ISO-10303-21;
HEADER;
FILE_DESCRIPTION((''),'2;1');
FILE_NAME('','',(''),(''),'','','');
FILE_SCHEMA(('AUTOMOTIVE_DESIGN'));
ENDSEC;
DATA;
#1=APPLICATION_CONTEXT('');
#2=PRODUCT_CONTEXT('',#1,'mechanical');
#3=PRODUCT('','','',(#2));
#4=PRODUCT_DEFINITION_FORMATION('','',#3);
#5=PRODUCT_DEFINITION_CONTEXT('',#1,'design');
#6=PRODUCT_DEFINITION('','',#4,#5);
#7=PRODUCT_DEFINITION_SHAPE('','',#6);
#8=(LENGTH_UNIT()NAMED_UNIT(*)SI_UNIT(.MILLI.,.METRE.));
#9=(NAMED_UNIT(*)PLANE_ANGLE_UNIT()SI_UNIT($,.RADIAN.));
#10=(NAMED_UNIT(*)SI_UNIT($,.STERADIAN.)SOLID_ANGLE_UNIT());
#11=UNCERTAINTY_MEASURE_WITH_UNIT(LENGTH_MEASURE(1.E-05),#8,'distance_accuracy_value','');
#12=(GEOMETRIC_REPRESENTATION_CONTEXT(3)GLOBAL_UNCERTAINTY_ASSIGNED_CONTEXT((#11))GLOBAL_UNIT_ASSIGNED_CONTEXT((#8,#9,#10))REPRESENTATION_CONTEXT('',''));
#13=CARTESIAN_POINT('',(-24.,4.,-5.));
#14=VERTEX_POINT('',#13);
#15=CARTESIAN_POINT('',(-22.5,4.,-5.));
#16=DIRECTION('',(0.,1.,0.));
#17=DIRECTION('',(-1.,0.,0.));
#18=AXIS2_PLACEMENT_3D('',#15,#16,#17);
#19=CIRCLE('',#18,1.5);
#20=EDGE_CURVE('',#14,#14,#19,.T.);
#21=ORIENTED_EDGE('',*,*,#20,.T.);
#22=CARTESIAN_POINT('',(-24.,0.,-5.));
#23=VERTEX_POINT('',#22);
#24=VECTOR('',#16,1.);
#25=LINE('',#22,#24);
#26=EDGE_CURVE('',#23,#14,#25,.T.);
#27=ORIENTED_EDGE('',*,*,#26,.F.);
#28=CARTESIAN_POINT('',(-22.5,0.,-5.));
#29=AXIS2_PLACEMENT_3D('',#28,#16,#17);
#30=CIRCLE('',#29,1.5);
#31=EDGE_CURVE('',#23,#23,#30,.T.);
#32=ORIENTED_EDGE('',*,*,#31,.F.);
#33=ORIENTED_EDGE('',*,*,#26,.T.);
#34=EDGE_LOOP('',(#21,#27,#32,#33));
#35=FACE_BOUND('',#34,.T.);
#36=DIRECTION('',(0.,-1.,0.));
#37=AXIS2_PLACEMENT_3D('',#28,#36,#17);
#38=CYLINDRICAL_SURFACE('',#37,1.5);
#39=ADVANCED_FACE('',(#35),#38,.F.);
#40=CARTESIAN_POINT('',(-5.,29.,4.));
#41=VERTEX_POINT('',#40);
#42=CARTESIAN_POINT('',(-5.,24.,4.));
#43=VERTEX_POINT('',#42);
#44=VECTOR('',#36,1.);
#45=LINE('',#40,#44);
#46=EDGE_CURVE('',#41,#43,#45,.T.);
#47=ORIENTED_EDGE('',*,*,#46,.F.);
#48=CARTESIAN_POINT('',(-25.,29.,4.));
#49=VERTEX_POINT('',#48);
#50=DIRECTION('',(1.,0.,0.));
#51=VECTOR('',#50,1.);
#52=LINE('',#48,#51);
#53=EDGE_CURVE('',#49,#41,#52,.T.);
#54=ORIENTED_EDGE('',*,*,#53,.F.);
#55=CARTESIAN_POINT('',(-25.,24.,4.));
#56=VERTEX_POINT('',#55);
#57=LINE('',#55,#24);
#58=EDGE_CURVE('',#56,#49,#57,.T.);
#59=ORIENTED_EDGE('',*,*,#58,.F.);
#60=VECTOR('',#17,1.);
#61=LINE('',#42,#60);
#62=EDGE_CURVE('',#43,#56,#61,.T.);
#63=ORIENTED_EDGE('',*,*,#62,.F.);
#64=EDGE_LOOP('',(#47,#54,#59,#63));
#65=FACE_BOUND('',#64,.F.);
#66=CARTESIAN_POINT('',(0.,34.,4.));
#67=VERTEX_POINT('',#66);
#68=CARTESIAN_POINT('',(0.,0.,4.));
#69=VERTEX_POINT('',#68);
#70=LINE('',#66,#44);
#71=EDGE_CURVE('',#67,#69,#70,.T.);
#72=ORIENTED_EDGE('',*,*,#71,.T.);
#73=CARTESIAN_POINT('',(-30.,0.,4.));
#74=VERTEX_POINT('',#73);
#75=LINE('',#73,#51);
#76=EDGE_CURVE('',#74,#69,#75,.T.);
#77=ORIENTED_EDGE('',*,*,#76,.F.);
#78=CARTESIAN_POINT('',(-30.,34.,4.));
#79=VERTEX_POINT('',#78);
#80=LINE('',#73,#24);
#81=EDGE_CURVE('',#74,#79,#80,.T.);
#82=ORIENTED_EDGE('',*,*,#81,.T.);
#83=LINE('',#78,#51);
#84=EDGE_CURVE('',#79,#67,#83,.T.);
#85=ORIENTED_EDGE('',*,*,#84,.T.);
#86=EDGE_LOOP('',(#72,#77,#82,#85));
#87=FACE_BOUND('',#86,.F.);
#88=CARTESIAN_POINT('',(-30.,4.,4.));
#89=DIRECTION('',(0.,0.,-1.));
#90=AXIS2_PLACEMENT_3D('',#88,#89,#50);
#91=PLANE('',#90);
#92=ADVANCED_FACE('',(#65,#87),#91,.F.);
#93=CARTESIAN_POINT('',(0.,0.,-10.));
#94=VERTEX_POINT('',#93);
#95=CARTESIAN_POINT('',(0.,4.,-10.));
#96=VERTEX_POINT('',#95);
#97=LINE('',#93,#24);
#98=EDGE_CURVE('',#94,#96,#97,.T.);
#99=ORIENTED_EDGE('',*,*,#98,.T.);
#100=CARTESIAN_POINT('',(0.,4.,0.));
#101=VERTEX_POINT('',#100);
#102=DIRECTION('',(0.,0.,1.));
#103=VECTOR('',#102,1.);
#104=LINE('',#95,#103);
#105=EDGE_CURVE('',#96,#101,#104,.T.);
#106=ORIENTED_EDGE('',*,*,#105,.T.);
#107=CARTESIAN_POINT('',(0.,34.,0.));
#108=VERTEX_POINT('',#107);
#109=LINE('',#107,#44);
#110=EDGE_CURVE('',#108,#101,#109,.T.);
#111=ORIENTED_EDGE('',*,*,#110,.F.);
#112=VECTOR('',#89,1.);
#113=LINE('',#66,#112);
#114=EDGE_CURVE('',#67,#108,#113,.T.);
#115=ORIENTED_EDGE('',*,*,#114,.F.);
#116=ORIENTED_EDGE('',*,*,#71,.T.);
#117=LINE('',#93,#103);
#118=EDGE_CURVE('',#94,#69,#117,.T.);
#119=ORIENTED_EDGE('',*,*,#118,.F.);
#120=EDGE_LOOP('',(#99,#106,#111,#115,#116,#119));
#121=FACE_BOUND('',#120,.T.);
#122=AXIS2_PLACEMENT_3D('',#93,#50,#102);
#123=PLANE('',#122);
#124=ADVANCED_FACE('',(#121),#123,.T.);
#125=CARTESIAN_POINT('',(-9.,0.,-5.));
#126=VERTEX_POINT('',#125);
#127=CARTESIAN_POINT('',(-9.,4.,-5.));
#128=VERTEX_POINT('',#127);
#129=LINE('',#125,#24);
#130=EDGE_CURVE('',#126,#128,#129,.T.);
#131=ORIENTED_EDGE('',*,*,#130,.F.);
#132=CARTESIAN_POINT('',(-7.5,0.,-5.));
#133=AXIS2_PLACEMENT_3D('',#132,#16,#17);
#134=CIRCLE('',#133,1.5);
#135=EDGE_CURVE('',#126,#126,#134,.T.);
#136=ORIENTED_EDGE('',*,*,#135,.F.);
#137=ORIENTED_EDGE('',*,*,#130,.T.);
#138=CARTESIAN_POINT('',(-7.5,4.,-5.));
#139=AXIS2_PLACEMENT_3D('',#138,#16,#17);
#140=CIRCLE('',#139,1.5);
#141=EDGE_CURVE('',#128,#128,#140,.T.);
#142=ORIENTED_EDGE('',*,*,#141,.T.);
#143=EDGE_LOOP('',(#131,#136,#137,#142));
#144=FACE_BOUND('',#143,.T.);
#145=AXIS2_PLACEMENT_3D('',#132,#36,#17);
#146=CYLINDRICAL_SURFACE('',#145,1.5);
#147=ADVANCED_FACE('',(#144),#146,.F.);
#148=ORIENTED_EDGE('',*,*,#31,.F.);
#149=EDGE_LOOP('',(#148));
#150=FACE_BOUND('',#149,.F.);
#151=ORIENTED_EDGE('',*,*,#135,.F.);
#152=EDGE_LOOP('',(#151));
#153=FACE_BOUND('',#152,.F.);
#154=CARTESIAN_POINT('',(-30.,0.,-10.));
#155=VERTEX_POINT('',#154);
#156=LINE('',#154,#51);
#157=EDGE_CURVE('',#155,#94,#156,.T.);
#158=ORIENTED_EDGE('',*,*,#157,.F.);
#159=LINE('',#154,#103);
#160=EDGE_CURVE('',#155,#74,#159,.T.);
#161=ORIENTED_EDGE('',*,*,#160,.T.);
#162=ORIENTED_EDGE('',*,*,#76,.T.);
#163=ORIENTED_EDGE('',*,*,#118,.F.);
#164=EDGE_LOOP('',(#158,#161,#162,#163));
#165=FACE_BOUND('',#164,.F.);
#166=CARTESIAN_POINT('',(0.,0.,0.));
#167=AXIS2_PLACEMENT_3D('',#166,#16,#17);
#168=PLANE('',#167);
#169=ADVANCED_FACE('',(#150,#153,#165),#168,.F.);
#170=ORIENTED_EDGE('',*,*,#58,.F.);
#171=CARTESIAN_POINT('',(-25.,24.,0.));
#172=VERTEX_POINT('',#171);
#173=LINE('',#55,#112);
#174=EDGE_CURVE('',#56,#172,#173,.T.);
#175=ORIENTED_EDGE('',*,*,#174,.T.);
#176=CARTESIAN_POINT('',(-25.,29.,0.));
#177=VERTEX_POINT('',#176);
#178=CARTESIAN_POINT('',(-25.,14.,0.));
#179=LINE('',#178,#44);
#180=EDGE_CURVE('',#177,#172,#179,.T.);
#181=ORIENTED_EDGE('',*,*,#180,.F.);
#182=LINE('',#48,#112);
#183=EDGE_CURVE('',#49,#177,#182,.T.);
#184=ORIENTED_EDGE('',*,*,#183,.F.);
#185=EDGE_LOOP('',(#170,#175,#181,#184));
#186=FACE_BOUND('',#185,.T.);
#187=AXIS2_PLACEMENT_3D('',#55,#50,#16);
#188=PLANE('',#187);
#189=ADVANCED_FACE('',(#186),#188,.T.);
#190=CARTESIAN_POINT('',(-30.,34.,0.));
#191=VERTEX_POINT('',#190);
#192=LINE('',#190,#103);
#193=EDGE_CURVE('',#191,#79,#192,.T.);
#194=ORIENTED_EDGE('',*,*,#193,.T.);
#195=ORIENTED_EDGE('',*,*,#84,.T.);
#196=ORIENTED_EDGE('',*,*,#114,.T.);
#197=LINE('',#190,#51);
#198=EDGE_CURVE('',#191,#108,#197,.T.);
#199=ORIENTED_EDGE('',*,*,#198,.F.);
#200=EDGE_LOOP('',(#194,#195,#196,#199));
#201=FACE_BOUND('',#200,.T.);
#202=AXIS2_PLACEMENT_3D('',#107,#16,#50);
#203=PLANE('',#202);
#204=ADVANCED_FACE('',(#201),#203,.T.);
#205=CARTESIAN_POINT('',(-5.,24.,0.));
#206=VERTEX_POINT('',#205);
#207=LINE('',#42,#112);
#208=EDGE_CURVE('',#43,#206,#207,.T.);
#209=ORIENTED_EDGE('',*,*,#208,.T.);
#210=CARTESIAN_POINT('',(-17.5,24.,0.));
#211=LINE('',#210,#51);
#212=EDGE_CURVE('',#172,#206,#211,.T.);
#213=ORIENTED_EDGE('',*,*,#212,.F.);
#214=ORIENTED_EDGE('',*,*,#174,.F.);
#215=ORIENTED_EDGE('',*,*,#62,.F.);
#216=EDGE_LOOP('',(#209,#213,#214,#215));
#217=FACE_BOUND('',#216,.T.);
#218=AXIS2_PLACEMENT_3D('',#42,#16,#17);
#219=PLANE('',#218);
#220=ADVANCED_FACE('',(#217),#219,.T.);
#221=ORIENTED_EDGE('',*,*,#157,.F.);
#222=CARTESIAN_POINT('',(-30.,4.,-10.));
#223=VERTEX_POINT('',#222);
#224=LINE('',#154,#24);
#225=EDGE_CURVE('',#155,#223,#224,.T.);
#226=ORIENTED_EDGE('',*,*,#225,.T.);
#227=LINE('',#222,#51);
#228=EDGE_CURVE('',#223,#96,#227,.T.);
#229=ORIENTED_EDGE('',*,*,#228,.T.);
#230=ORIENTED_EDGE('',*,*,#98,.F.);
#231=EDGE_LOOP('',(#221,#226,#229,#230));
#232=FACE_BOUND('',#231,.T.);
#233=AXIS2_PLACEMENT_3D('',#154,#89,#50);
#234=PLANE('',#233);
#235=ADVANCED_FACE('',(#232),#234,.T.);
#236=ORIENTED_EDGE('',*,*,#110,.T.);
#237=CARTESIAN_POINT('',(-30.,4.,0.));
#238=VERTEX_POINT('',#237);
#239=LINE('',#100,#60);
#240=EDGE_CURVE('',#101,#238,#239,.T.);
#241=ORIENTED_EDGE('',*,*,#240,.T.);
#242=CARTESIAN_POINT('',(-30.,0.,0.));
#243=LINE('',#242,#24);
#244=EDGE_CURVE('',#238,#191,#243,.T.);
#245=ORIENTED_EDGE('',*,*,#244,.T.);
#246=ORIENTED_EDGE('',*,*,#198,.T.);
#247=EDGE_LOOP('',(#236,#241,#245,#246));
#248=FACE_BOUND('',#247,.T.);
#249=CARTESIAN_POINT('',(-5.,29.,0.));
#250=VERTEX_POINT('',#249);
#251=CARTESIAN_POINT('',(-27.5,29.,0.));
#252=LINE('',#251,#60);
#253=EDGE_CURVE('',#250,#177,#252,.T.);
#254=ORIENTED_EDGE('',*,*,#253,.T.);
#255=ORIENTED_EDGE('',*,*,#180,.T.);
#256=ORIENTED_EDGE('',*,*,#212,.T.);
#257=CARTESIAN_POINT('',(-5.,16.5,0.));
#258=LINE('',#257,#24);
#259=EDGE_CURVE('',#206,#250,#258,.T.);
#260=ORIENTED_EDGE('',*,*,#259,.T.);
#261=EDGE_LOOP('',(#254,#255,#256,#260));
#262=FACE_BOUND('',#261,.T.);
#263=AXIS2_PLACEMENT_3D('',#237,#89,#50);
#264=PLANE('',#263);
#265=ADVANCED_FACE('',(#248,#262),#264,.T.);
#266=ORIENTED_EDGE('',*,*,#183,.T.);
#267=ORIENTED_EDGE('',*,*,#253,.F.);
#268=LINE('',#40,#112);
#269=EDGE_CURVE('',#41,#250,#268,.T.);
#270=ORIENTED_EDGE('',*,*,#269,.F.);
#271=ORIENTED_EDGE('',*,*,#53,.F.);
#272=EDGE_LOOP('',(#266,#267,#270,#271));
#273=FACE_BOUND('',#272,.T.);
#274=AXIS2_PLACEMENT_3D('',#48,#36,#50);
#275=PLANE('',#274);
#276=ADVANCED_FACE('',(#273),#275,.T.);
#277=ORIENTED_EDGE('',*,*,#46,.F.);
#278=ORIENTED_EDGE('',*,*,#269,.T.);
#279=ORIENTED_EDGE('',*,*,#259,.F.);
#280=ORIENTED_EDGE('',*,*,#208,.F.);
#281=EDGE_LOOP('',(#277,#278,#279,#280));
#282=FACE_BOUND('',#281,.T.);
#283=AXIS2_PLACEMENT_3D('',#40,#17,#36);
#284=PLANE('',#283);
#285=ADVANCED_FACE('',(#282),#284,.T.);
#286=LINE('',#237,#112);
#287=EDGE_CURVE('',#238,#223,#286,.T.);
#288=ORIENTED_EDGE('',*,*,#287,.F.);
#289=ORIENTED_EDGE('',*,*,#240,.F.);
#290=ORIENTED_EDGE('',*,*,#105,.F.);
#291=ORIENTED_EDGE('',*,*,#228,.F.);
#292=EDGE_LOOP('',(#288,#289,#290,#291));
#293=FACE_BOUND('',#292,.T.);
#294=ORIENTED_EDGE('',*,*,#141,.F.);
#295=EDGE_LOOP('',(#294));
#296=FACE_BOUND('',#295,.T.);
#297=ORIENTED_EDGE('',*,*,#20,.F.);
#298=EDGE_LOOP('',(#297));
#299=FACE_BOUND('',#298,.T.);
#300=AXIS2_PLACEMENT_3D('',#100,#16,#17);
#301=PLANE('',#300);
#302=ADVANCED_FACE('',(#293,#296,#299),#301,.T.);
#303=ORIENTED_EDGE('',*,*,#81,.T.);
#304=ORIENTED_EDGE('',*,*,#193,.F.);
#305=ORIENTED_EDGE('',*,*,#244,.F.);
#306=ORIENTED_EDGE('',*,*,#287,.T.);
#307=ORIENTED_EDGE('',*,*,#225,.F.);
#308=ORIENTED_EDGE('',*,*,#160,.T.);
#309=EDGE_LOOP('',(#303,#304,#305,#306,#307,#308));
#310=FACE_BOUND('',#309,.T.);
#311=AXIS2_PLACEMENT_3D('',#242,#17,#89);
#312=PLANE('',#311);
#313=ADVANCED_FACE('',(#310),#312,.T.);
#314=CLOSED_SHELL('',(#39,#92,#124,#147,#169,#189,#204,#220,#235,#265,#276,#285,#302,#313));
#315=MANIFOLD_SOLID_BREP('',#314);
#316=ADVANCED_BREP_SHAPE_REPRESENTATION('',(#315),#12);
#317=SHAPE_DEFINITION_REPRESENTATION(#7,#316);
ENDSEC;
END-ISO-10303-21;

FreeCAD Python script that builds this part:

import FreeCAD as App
import Part
import Sketcher

V = App.Vector
Q = App.Units.Quantity

doc = App.newDocument("Part")
body = doc.addObject("PartDesign::Body", "Body")

# Sketch on XZ plane
sketch1 = body.newObject("Sketcher::SketchObject", "Sketch")
sketch1.AttachmentSupport = (doc.getObject("XZ_Plane"), [""])
sketch1.MapMode = "FlatFace"
sketch1.addGeometry([
    Part.LineSegment(V(-30, 0, 0), V(0, 0, 0)),  # 0
    Part.LineSegment(V(0, 0, 0), V(0, -10, 0)),  # 1
    Part.LineSegment(V(0, -10, 0), V(-30, -10, 0)),  # 2
    Part.LineSegment(V(-30, -10, 0), V(-30, 0, 0)),  # 3
    Part.Circle(V(-7.5, -5, 0), V(0, 0, 1), 1.5),  # 4
    Part.Circle(V(-22.5, -5, 0), V(0, 0, 1), 1.5),  # 5
], False)
sketch1.addConstraint([
    Sketcher.Constraint("Coincident", 0, 2, 1, 1),
    Sketcher.Constraint("Coincident", 1, 2, 2, 1),
    Sketcher.Constraint("Coincident", 2, 2, 3, 1),
    Sketcher.Constraint("Coincident", 3, 2, 0, 1),
    Sketcher.Constraint("Horizontal", 0),
    Sketcher.Constraint("Vertical", 1),
    Sketcher.Constraint("Horizontal", 2),
    Sketcher.Constraint("Vertical", 3),
    Sketcher.Constraint("Coincident", 0, 2, -1, 1),
    Sketcher.Constraint("Equal", 4, 5),
    Sketcher.Constraint("Horizontal", 4, 3, 5, 3),
    Sketcher.Constraint("Diameter", 4, Q("3 mm")),
    Sketcher.Constraint("DistanceX", 0, 1, 0, 2, Q("30 mm")),
    Sketcher.Constraint("DistanceY", 1, 2, 1, 1, Q("10 mm")),
    Sketcher.Constraint("DistanceY", 4, 3, -1, 1, Q("5 mm")),
    Sketcher.Constraint("DistanceX", 5, 3, 4, 3, Q("15 mm")),
    Sketcher.Constraint("DistanceX", 4, 3, -1, 1, Q("7.5 mm")),
])
pad1 = body.newObject("PartDesign::Pad", "Pad")
pad1.Profile = sketch1
pad1.Length = 4
pad1.Reversed = True

# Sketch on XZ plane
sketch2 = body.newObject("Sketcher::SketchObject", "Sketch001")
sketch2.AttachmentSupport = (doc.getObject("XZ_Plane"), [""])
sketch2.MapMode = "FlatFace"
sketch2.AttachmentOffset = App.Placement(V(0, 0, -4), App.Rotation())
sketch2.addGeometry([
    Part.LineSegment(V(0, 0, 0), V(-30, 0, 0)),
    Part.LineSegment(V(-30, 0, 0), V(-30, 4, 0)),
    Part.LineSegment(V(-30, 4, 0), V(0, 4, 0)),
    Part.LineSegment(V(0, 4, 0), V(0, 0, 0)),
], False)
sketch2.addConstraint([
    Sketcher.Constraint("Coincident", 0, 2, 1, 1),
    Sketcher.Constraint("Coincident", 1, 2, 2, 1),
    Sketcher.Constraint("Coincident", 2, 2, 3, 1),
    Sketcher.Constraint("Coincident", 3, 2, 0, 1),
    Sketcher.Constraint("Horizontal", 0),
    Sketcher.Constraint("Vertical", 1),
    Sketcher.Constraint("Horizontal", 2),
    Sketcher.Constraint("Vertical", 3),
    Sketcher.Constraint("Coincident", 3, 2, -1, 1),
    Sketcher.Constraint("DistanceY", 1, 1, 1, 2, Q("4 mm")),
    Sketcher.Constraint("DistanceX", 0, 2, 0, 1, Q("30 mm")),
])
pad2 = body.newObject("PartDesign::Pad", "Pad001")
pad2.Profile = sketch2
pad2.Type = "TwoLengths"
pad2.Length = 30
pad2.Length2 = 4
pad2.Reversed = True

# Sketch on XY plane
sketch3 = body.newObject("Sketcher::SketchObject", "Sketch002")
sketch3.AttachmentSupport = (doc.getObject("XY_Plane"), [""])
sketch3.MapMode = "FlatFace"
sketch3.AttachmentOffset = App.Placement(V(0, 0, 4), App.Rotation())
sketch3.addGeometry([
    Part.LineSegment(V(-5, 29, 0), V(-25, 29, 0)),
    Part.LineSegment(V(-25, 29, 0), V(-25, 24, 0)),
    Part.LineSegment(V(-25, 24, 0), V(-5, 24, 0)),
    Part.LineSegment(V(-5, 24, 0), V(-5, 29, 0)),
], False)
sketch3.addConstraint([
    Sketcher.Constraint("Coincident", 0, 2, 1, 1),
    Sketcher.Constraint("Coincident", 1, 2, 2, 1),
    Sketcher.Constraint("Coincident", 2, 2, 3, 1),
    Sketcher.Constraint("Coincident", 3, 2, 0, 1),
    Sketcher.Constraint("Horizontal", 0),
    Sketcher.Constraint("Vertical", 1),
    Sketcher.Constraint("Horizontal", 2),
    Sketcher.Constraint("Vertical", 3),
    Sketcher.Constraint("DistanceX", 0, 2, 0, 1, Q("20 mm")),
    Sketcher.Constraint("DistanceY", 1, 2, 1, 1, Q("5 mm")),
    Sketcher.Constraint("DistanceX", 2, 2, -1, 1, Q("5 mm")),
    Sketcher.Constraint("DistanceY", -1, 1, 0, 2, Q("29 mm")),
])
pocket1 = body.newObject("PartDesign::Pocket", "Pocket")
pocket1.Profile = sketch3
pocket1.Length = 30

doc.recompute()
